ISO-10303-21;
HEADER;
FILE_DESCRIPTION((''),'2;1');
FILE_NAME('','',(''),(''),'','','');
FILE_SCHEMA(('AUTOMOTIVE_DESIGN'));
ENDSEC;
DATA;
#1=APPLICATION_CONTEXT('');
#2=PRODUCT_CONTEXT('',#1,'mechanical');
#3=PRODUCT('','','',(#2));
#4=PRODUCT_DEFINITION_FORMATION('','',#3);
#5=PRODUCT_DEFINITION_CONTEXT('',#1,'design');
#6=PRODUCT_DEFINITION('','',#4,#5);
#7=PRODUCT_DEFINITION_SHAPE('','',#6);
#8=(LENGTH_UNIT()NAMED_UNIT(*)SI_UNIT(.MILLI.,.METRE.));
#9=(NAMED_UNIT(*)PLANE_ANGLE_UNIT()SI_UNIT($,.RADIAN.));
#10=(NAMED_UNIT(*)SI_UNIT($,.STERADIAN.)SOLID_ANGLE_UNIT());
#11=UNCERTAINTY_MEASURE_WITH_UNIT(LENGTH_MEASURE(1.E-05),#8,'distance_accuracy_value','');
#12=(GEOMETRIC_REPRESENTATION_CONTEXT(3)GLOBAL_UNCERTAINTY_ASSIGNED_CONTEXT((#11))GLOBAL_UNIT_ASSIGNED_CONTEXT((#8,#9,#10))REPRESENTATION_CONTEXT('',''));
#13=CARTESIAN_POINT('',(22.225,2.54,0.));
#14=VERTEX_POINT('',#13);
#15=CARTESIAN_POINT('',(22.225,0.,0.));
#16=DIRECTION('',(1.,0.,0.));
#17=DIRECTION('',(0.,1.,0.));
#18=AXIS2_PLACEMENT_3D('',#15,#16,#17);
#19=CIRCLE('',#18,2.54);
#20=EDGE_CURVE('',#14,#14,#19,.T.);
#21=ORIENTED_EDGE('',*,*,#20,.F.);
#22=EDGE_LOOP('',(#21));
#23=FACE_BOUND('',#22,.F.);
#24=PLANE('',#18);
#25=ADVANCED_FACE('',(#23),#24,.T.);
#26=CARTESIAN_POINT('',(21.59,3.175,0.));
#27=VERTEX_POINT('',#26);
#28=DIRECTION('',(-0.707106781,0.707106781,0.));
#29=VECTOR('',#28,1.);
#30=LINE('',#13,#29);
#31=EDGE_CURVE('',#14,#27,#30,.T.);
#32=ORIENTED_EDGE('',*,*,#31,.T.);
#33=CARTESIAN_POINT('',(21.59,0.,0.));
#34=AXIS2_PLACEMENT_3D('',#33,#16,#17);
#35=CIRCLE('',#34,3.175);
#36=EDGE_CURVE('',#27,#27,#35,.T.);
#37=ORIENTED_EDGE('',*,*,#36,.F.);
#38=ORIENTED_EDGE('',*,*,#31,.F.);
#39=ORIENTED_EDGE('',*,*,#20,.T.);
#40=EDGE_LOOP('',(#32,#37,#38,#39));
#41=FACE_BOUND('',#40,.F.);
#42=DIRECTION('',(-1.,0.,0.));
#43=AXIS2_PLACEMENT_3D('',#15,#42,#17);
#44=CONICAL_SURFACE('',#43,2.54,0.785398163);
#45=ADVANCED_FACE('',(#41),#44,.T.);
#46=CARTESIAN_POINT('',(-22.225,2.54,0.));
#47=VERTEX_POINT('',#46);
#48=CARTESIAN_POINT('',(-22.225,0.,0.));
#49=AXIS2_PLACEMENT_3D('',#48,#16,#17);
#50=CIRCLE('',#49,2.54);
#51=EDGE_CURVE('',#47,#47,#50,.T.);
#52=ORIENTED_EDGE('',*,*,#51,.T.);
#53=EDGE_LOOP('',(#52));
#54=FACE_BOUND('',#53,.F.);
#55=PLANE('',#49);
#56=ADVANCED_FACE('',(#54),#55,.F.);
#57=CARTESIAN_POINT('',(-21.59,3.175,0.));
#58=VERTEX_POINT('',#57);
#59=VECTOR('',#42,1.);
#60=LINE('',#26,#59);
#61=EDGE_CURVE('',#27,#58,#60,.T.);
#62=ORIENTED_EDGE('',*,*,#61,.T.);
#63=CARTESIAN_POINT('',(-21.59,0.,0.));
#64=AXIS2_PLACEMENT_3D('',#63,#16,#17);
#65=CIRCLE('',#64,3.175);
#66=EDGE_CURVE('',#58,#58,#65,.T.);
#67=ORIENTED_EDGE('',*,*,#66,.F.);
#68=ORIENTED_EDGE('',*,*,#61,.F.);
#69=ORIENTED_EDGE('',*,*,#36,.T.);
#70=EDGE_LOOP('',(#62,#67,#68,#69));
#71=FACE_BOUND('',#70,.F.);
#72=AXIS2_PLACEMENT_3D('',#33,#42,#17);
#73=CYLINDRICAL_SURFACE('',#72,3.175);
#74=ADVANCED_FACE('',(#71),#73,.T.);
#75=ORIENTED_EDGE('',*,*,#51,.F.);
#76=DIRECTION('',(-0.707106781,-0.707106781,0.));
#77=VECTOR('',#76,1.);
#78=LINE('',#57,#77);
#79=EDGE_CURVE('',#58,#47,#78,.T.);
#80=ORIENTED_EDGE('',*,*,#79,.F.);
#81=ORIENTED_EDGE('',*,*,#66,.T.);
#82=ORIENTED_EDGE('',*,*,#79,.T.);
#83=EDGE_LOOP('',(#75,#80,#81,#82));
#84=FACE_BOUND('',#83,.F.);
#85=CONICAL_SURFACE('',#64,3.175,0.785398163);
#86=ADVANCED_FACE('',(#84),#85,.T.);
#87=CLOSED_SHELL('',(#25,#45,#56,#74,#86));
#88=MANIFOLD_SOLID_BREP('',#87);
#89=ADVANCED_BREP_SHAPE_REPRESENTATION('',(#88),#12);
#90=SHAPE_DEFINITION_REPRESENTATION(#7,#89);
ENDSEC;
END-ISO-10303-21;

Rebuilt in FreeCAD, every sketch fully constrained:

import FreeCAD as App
import Part
import Sketcher
Q = App.Units.Quantity

doc = App.newDocument("Part")
body = doc.addObject("PartDesign::Body", "Body")

# Sketch on XY plane
sketch1 = body.newObject("Sketcher::SketchObject", "Sketch")
sketch1.AttachmentSupport = (doc.getObject("XY_Plane"), [""])
sketch1.MapMode = "FlatFace"
sketch1.addGeometry([
    Part.LineSegment(App.Vector(-22.2, 2.5, 0), App.Vector(-22.2, 0, 0)),  # 0
    Part.LineSegment(App.Vector(-22.2, 0, 0), App.Vector(22.2, 0, 0)),  # 1
    Part.LineSegment(App.Vector(22.2, 0, 0), App.Vector(22.2, 2.5, 0)),  # 2
    Part.LineSegment(App.Vector(22.2, 2.5, 0), App.Vector(21.6, 3.2, 0)),  # 3
    Part.LineSegment(App.Vector(21.6, 3.2, 0), App.Vector(-21.6, 3.2, 0)),  # 4
    Part.LineSegment(App.Vector(-21.6, 3.2, 0), App.Vector(-22.2, 2.5, 0)),  # 5
], False)
sketch1.addConstraint([
    Sketcher.Constraint("Coincident", 0, 2, 1, 1),
    Sketcher.Constraint("Coincident", 1, 2, 2, 1),
    Sketcher.Constraint("Coincident", 2, 2, 3, 1),
    Sketcher.Constraint("Coincident", 3, 2, 4, 1),
    Sketcher.Constraint("Coincident", 4, 2, 5, 1),
    Sketcher.Constraint("Coincident", 5, 2, 0, 1),
    Sketcher.Constraint("Vertical", 0),
    Sketcher.Constraint("Horizontal", 1),
    Sketcher.Constraint("Vertical", 2),
    Sketcher.Constraint("Horizontal", 4),
    Sketcher.Constraint("Symmetric", 0, 2, 1, 2, -1, 1),
    Sketcher.Constraint("Perpendicular", 3, 5),
    Sketcher.Constraint("Horizontal", 2, 2, 5, 2),
    Sketcher.Constraint("Equal", 3, 5),
    Sketcher.Constraint("DistanceX", 4, 2, 4, 1, Q("1.7 in")),
    Sketcher.Constraint("DistanceY", 0, 2, 0, 1, Q("0.1 in")),
    Sketcher.Constraint("DistanceX", 1, 1, 1, 2, Q("1.75 in")),
])
revolution = body.newObject("PartDesign::Revolution", "Revolution")
revolution.Profile = sketch1
revolution.ReferenceAxis = (sketch1, ["H_Axis"])
revolution.Angle = 360

doc.recompute()
